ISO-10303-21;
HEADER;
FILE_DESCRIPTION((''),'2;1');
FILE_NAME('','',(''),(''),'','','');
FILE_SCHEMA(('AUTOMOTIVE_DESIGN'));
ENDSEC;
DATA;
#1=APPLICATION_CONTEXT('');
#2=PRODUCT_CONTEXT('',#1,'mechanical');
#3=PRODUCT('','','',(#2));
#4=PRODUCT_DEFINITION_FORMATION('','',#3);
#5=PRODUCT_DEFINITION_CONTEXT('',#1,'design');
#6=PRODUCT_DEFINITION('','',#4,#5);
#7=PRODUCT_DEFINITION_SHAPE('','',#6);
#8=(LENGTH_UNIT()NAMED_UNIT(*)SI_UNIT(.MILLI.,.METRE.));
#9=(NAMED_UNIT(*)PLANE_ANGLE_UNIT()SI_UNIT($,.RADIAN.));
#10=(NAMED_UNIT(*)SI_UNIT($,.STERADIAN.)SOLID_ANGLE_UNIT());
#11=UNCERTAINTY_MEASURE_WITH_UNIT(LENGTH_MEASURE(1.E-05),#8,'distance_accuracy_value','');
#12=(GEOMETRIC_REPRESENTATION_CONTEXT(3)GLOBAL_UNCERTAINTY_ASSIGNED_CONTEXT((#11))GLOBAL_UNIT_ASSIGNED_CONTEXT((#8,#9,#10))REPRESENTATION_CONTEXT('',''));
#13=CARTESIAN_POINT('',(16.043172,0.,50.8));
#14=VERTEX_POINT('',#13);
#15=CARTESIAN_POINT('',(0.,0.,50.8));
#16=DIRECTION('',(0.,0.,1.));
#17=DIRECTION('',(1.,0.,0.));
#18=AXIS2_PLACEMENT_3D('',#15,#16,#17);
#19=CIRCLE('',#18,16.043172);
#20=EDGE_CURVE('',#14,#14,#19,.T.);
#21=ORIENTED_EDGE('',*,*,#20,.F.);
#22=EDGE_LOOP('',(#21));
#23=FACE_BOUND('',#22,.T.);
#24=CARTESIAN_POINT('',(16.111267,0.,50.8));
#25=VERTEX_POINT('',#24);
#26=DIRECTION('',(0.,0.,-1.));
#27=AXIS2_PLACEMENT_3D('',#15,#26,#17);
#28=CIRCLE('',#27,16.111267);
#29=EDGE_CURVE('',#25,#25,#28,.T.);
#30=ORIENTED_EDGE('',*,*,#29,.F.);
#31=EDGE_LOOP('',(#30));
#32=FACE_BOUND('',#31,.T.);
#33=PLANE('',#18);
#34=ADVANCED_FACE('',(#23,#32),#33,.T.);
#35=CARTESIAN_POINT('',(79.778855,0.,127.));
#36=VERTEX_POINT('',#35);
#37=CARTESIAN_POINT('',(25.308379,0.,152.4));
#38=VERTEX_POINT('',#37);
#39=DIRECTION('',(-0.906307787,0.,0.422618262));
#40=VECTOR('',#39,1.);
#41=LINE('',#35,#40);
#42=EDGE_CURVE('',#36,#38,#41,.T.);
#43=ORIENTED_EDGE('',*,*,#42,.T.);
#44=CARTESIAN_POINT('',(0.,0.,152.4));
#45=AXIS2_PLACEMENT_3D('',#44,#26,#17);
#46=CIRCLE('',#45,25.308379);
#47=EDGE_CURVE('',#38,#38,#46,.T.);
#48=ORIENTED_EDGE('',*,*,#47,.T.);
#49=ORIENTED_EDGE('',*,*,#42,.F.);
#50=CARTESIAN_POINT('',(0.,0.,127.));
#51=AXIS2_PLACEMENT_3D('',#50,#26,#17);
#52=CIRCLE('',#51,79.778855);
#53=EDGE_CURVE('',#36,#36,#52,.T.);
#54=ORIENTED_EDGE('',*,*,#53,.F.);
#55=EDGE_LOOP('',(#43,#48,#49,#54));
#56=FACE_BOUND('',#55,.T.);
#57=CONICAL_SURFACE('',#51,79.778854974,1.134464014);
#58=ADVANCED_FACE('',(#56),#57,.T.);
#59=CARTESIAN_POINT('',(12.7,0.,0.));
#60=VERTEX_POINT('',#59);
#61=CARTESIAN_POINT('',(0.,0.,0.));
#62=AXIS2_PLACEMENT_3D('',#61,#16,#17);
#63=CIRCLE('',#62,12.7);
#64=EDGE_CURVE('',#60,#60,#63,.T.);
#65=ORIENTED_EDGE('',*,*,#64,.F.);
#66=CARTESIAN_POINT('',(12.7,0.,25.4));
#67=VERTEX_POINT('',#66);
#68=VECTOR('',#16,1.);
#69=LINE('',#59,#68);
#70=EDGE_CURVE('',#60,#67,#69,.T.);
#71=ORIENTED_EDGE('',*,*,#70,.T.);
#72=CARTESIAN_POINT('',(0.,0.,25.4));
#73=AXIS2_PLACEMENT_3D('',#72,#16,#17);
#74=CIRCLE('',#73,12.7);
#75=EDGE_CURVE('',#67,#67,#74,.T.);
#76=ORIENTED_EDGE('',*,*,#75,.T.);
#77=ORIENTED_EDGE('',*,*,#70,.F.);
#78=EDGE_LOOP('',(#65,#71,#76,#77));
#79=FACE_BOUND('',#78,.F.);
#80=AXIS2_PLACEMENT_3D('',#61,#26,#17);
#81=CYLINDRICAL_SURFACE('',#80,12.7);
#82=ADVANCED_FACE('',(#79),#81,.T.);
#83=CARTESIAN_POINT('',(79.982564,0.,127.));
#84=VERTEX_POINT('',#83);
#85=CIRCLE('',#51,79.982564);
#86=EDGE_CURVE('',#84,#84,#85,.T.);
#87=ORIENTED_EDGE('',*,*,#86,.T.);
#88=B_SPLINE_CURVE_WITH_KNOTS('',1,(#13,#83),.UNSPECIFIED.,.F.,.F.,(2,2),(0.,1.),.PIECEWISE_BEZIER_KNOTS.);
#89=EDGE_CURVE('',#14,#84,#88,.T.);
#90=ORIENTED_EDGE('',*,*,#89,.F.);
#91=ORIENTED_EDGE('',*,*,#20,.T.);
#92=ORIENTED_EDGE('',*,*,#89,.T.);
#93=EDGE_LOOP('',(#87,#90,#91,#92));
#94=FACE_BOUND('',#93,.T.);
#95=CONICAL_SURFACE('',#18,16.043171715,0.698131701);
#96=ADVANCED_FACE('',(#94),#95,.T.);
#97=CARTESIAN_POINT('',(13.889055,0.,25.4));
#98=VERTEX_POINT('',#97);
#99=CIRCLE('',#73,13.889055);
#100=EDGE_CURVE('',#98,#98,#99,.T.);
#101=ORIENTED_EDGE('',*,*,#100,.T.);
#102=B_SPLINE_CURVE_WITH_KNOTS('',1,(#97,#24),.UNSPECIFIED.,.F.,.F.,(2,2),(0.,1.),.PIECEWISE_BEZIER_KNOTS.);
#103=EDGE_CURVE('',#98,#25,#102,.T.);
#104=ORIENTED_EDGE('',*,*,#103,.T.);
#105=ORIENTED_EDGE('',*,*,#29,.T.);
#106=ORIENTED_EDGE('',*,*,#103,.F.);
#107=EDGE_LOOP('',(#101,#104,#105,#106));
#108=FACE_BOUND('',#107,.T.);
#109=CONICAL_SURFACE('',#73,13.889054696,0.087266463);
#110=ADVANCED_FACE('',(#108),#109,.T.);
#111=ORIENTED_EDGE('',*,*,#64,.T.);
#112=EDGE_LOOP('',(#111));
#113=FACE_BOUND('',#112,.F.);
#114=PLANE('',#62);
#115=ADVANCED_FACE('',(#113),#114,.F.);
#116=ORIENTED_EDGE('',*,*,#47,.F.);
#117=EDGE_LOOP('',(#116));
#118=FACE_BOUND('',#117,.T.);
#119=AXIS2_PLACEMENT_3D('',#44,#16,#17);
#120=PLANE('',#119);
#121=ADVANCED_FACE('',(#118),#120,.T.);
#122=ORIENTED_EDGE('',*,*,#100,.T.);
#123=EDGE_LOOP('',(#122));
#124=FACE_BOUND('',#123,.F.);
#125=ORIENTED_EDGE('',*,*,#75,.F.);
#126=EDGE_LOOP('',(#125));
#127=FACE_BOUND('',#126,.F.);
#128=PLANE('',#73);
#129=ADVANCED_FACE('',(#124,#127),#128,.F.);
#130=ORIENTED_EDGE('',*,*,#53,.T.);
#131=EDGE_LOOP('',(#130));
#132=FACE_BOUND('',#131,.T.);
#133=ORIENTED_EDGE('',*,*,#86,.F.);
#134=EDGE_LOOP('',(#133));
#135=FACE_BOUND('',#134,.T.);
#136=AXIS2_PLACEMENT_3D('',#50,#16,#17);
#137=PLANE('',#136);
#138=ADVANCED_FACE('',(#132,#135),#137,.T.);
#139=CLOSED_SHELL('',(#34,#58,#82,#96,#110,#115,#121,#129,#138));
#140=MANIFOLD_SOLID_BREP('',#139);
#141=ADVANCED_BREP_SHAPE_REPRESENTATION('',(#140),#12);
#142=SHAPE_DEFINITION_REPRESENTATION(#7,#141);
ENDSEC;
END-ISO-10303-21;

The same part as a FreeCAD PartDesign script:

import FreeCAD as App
import Part
import Sketcher

V = App.Vector
Q = App.Units.Quantity

doc = App.newDocument("Part")
params = doc.addObject("Spreadsheet::Sheet", "Params")
for row, (alias, value) in enumerate([
    ("sketch1_diameter", "1 in"),
    ("pad1_length", "1 in"),
    ("pad2_length", "1 in"),
    ("pad2_taper", "5 deg"),
    ("pad3_length", "3 in"),
    ("pad3_taper", "40 deg"),
    ("pad4_length", "1 in"),
    ("pad4_taper", "-65 deg"),
], start=1):
    params.set(f"A{row}", alias)
    params.set(f"B{row}", "=" + value)
    params.setAlias(f"B{row}", alias)

body = doc.addObject("PartDesign::Body", "Body")

# Sketch on XY plane
sketch1 = doc.addObject("Sketcher::SketchObject", "Sketch")
body.addObject(sketch1)
sketch1.AttachmentSupport = (doc.XY_Plane, [""])
sketch1.MapMode = "FlatFace"
sketch1.addGeometry(Part.Circle(V(0, 0, 0), V(0, 0, 1), 13), False)
sketch1.addConstraint(Sketcher.Constraint("Coincident", 0, 3, -1, 1))
sketch1.addConstraint(Sketcher.Constraint("Diameter", 0, Q("1 in")))
sketch1.setExpression("Constraints[1]", "Params.sketch1_diameter")
pad1 = doc.addObject("PartDesign::Pad", "Pad")
body.addObject(pad1)
pad1.Profile = sketch1
pad1.setExpression("Length", "Params.pad1_length")

# Sketch on XY plane
sketch2 = doc.addObject("Sketcher::SketchObject", "Sketch001")
body.addObject(sketch2)
sketch2.AttachmentSupport = (doc.XY_Plane, [""])
sketch2.MapMode = "FlatFace"
sketch2.AttachmentOffset = App.Placement(V(0, 0, 1 * 25.4), App.Rotation())
sketch2.addGeometry(Part.Circle(V(0, 0, 0), V(0, 0, 1), 14), False)
sketch2.addConstraint(Sketcher.Constraint("Coincident", 0, 3, -1, 1))
sketch2.addConstraint(Sketcher.Constraint("Diameter", 0, Q("27.778109 mm")))
pad2 = doc.addObject("PartDesign::Pad", "Pad001")
body.addObject(pad2)
pad2.Profile = sketch2
pad2.setExpression("Length", "Params.pad2_length")
pad2.setExpression("TaperAngle", "Params.pad2_taper")

# Sketch on XY plane
sketch3 = doc.addObject("Sketcher::SketchObject", "Sketch002")
body.addObject(sketch3)
sketch3.AttachmentSupport = (doc.XY_Plane, [""])
sketch3.MapMode = "FlatFace"
sketch3.AttachmentOffset = App.Placement(V(0, 0, 2 * 25.4), App.Rotation())
sketch3.addGeometry(Part.Circle(V(0, 0, 0), V(0, 0, 1), 16), False)
sketch3.addConstraint(Sketcher.Constraint("Coincident", 0, 3, -1, 1))
sketch3.addConstraint(Sketcher.Constraint("Diameter", 0, Q("32.086343 mm")))
pad3 = doc.addObject("PartDesign::Pad", "Pad002")
body.addObject(pad3)
pad3.Profile = sketch3
pad3.setExpression("Length", "Params.pad3_length")
pad3.setExpression("TaperAngle", "Params.pad3_taper")

# Sketch on XY plane
sketch4 = doc.addObject("Sketcher::SketchObject", "Sketch003")
body.addObject(sketch4)
sketch4.AttachmentSupport = (doc.XY_Plane, [""])
sketch4.MapMode = "FlatFace"
sketch4.AttachmentOffset = App.Placement(V(0, 0, 5 * 25.4), App.Rotation())
sketch4.addGeometry(Part.Circle(V(0, 0, 0), V(0, 0, 1), 80), False)
sketch4.addConstraint(Sketcher.Constraint("Coincident", 0, 3, -1, 1))
sketch4.addConstraint(Sketcher.Constraint("Diameter", 0, Q("159.55771 mm")))
pad4 = doc.addObject("PartDesign::Pad", "Pad003")
body.addObject(pad4)
pad4.Profile = sketch4
pad4.setExpression("Length", "Params.pad4_length")
pad4.setExpression("TaperAngle", "Params.pad4_taper")

doc.recompute()
